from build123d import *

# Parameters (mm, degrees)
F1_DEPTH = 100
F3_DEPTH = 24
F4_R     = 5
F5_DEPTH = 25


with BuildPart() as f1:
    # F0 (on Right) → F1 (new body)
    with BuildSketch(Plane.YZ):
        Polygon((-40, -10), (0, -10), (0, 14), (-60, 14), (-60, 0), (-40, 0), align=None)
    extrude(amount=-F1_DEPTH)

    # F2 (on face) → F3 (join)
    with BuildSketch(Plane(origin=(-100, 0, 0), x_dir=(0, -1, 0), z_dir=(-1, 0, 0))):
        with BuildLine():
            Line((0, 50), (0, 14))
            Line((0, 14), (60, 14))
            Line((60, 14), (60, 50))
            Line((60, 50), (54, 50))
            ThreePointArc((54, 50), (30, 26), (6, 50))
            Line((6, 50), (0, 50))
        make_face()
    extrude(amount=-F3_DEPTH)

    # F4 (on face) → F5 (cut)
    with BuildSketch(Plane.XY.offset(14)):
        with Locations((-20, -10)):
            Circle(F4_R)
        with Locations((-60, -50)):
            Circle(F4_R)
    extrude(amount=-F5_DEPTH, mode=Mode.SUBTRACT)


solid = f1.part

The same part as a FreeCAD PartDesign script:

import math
import FreeCAD as App
import Part
import Sketcher

V = App.Vector


def add_polygon(sketch, points):
    """Adds a closed chain of lines whose ends are joined by coincident constraints."""
    first, n = sketch.GeometryCount, len(points)
    for a, b in zip(points, points[1:] + points[:1]):
        sketch.addGeometry(Part.LineSegment(App.Vector(*a, 0), App.Vector(*b, 0)), False)
    for i in range(n):
        sketch.addConstraint(Sketcher.Constraint("Coincident", first + i, 2, first + (i + 1) % n, 1))

doc = App.newDocument("Part")
body = doc.addObject("PartDesign::Body", "Body")

# Sketch on YZ plane
sketch1 = body.newObject("Sketcher::SketchObject", "Sketch")
sketch1.AttachmentSupport = (doc.getObject("YZ_Plane"), [""])
sketch1.MapMode = "FlatFace"
add_polygon(sketch1, [(-40, -10), (0, -10), (0, 14), (-60, 14), (-60, 0), (-40, 0)])  # lines 0-5
sketch1.addConstraint([
    Sketcher.Constraint("Horizontal", 0),
    Sketcher.Constraint("Vertical", 1),
    Sketcher.Constraint("Horizontal", 2),
    Sketcher.Constraint("Vertical", 3),
    Sketcher.Constraint("Horizontal", 4),
    Sketcher.Constraint("Vertical", 5),
    Sketcher.Constraint("PointOnObject", 0, 2, -2),
    Sketcher.Constraint("PointOnObject", 3, 2, -1),
    Sketcher.Constraint("DistanceX", 0, 1, 0, 2, 40.0),
    Sketcher.Constraint("DistanceX", 2, 2, 2, 1, 60.0),
    Sketcher.Constraint("DistanceY", 1, 1, 1, 2, 24.0),
    Sketcher.Constraint("DistanceY", 3, 2, 3, 1, 14.0),
])
pad1 = body.newObject("PartDesign::Pad", "Pad")
pad1.Profile = sketch1
pad1.Length = 100
pad1.Reversed = True

# Sketch on YZ plane
sketch2 = body.newObject("Sketcher::SketchObject", "Sketch001")
sketch2.AttachmentSupport = (doc.getObject("YZ_Plane"), [""])
sketch2.MapMode = "FlatFace"
sketch2.AttachmentOffset = App.Placement(V(0, 0, -100), App.Rotation())
sketch2.addGeometry([
    Part.LineSegment(V(0, 50, 0), V(0, 14, 0)),  # 0
    Part.LineSegment(V(0, 14, 0), V(-60, 14, 0)),  # 1
    Part.LineSegment(V(-60, 14, 0), V(-60, 50, 0)),  # 2
    Part.LineSegment(V(-60, 50, 0), V(-54, 50, 0)),  # 3
    Part.ArcOfCircle(Part.Circle(V(-30, 50, 0), V(0, 0, 1), 24), math.radians(180), math.radians(360)),  # 4
    Part.LineSegment(V(-6, 50, 0), V(0, 50, 0)),  # 5
], False)
sketch2.addConstraint([
    Sketcher.Constraint("Coincident", 0, 2, 1, 1),
    Sketcher.Constraint("Coincident", 1, 2, 2, 1),
    Sketcher.Constraint("Coincident", 2, 2, 3, 1),
    Sketcher.Constraint("Coincident", 3, 2, 4, 1),
    Sketcher.Constraint("Coincident", 4, 2, 5, 1),
    Sketcher.Constraint("Coincident", 5, 2, 0, 1),
    Sketcher.Constraint("Vertical", 0),
    Sketcher.Constraint("Horizontal", 1),
    Sketcher.Constraint("Vertical", 2),
    Sketcher.Constraint("Horizontal", 3),
    Sketcher.Constraint("Horizontal", 5),
    Sketcher.Constraint("PointOnObject", 0, 2, -2),
    Sketcher.Constraint("Horizontal", 4, 3, 2, 2),
    Sketcher.Constraint("Horizontal", 3, 2, 4, 2),
    Sketcher.Constraint("Equal", 3, 5),
    Sketcher.Constraint("Radius", 4, 24.0),
    Sketcher.Constraint("DistanceX", 1, 2, 1, 1, 60.0),
    Sketcher.Constraint("DistanceY", 0, 2, 0, 1, 36.0),
    Sketcher.Constraint("DistanceY", -1, 1, 4, 3, 50.0),
])
pad2 = body.newObject("PartDesign::Pad", "Pad001")
pad2.Profile = sketch2
pad2.Length = 24

# Sketch on XY plane
sketch3 = body.newObject("Sketcher::SketchObject", "Sketch002")
sketch3.AttachmentSupport = (doc.getObject("XY_Plane"), [""])
sketch3.MapMode = "FlatFace"
sketch3.AttachmentOffset = App.Placement(V(0, 0, 14), App.Rotation())
sketch3.addGeometry([
    Part.Circle(V(-20, -10, 0), V(0, 0, 1), 5),
    Part.Circle(V(-60, -50, 0), V(0, 0, 1), 5),
], False)
sketch3.addConstraint([
    Sketcher.Constraint("Equal", 0, 1),
    Sketcher.Constraint("Diameter", 0, 10.0),
    Sketcher.Constraint("DistanceX", 0, 3, -1, 1, 20.0),
    Sketcher.Constraint("DistanceY", 0, 3, -1, 1, 10.0),
    Sketcher.Constraint("DistanceX", 1, 3, -1, 1, 60.0),
    Sketcher.Constraint("DistanceY", 1, 3, -1, 1, 50.0),
])
pocket1 = body.newObject("PartDesign::Pocket", "Pocket")
pocket1.Profile = sketch3
pocket1.Length = 25

doc.recompute()
